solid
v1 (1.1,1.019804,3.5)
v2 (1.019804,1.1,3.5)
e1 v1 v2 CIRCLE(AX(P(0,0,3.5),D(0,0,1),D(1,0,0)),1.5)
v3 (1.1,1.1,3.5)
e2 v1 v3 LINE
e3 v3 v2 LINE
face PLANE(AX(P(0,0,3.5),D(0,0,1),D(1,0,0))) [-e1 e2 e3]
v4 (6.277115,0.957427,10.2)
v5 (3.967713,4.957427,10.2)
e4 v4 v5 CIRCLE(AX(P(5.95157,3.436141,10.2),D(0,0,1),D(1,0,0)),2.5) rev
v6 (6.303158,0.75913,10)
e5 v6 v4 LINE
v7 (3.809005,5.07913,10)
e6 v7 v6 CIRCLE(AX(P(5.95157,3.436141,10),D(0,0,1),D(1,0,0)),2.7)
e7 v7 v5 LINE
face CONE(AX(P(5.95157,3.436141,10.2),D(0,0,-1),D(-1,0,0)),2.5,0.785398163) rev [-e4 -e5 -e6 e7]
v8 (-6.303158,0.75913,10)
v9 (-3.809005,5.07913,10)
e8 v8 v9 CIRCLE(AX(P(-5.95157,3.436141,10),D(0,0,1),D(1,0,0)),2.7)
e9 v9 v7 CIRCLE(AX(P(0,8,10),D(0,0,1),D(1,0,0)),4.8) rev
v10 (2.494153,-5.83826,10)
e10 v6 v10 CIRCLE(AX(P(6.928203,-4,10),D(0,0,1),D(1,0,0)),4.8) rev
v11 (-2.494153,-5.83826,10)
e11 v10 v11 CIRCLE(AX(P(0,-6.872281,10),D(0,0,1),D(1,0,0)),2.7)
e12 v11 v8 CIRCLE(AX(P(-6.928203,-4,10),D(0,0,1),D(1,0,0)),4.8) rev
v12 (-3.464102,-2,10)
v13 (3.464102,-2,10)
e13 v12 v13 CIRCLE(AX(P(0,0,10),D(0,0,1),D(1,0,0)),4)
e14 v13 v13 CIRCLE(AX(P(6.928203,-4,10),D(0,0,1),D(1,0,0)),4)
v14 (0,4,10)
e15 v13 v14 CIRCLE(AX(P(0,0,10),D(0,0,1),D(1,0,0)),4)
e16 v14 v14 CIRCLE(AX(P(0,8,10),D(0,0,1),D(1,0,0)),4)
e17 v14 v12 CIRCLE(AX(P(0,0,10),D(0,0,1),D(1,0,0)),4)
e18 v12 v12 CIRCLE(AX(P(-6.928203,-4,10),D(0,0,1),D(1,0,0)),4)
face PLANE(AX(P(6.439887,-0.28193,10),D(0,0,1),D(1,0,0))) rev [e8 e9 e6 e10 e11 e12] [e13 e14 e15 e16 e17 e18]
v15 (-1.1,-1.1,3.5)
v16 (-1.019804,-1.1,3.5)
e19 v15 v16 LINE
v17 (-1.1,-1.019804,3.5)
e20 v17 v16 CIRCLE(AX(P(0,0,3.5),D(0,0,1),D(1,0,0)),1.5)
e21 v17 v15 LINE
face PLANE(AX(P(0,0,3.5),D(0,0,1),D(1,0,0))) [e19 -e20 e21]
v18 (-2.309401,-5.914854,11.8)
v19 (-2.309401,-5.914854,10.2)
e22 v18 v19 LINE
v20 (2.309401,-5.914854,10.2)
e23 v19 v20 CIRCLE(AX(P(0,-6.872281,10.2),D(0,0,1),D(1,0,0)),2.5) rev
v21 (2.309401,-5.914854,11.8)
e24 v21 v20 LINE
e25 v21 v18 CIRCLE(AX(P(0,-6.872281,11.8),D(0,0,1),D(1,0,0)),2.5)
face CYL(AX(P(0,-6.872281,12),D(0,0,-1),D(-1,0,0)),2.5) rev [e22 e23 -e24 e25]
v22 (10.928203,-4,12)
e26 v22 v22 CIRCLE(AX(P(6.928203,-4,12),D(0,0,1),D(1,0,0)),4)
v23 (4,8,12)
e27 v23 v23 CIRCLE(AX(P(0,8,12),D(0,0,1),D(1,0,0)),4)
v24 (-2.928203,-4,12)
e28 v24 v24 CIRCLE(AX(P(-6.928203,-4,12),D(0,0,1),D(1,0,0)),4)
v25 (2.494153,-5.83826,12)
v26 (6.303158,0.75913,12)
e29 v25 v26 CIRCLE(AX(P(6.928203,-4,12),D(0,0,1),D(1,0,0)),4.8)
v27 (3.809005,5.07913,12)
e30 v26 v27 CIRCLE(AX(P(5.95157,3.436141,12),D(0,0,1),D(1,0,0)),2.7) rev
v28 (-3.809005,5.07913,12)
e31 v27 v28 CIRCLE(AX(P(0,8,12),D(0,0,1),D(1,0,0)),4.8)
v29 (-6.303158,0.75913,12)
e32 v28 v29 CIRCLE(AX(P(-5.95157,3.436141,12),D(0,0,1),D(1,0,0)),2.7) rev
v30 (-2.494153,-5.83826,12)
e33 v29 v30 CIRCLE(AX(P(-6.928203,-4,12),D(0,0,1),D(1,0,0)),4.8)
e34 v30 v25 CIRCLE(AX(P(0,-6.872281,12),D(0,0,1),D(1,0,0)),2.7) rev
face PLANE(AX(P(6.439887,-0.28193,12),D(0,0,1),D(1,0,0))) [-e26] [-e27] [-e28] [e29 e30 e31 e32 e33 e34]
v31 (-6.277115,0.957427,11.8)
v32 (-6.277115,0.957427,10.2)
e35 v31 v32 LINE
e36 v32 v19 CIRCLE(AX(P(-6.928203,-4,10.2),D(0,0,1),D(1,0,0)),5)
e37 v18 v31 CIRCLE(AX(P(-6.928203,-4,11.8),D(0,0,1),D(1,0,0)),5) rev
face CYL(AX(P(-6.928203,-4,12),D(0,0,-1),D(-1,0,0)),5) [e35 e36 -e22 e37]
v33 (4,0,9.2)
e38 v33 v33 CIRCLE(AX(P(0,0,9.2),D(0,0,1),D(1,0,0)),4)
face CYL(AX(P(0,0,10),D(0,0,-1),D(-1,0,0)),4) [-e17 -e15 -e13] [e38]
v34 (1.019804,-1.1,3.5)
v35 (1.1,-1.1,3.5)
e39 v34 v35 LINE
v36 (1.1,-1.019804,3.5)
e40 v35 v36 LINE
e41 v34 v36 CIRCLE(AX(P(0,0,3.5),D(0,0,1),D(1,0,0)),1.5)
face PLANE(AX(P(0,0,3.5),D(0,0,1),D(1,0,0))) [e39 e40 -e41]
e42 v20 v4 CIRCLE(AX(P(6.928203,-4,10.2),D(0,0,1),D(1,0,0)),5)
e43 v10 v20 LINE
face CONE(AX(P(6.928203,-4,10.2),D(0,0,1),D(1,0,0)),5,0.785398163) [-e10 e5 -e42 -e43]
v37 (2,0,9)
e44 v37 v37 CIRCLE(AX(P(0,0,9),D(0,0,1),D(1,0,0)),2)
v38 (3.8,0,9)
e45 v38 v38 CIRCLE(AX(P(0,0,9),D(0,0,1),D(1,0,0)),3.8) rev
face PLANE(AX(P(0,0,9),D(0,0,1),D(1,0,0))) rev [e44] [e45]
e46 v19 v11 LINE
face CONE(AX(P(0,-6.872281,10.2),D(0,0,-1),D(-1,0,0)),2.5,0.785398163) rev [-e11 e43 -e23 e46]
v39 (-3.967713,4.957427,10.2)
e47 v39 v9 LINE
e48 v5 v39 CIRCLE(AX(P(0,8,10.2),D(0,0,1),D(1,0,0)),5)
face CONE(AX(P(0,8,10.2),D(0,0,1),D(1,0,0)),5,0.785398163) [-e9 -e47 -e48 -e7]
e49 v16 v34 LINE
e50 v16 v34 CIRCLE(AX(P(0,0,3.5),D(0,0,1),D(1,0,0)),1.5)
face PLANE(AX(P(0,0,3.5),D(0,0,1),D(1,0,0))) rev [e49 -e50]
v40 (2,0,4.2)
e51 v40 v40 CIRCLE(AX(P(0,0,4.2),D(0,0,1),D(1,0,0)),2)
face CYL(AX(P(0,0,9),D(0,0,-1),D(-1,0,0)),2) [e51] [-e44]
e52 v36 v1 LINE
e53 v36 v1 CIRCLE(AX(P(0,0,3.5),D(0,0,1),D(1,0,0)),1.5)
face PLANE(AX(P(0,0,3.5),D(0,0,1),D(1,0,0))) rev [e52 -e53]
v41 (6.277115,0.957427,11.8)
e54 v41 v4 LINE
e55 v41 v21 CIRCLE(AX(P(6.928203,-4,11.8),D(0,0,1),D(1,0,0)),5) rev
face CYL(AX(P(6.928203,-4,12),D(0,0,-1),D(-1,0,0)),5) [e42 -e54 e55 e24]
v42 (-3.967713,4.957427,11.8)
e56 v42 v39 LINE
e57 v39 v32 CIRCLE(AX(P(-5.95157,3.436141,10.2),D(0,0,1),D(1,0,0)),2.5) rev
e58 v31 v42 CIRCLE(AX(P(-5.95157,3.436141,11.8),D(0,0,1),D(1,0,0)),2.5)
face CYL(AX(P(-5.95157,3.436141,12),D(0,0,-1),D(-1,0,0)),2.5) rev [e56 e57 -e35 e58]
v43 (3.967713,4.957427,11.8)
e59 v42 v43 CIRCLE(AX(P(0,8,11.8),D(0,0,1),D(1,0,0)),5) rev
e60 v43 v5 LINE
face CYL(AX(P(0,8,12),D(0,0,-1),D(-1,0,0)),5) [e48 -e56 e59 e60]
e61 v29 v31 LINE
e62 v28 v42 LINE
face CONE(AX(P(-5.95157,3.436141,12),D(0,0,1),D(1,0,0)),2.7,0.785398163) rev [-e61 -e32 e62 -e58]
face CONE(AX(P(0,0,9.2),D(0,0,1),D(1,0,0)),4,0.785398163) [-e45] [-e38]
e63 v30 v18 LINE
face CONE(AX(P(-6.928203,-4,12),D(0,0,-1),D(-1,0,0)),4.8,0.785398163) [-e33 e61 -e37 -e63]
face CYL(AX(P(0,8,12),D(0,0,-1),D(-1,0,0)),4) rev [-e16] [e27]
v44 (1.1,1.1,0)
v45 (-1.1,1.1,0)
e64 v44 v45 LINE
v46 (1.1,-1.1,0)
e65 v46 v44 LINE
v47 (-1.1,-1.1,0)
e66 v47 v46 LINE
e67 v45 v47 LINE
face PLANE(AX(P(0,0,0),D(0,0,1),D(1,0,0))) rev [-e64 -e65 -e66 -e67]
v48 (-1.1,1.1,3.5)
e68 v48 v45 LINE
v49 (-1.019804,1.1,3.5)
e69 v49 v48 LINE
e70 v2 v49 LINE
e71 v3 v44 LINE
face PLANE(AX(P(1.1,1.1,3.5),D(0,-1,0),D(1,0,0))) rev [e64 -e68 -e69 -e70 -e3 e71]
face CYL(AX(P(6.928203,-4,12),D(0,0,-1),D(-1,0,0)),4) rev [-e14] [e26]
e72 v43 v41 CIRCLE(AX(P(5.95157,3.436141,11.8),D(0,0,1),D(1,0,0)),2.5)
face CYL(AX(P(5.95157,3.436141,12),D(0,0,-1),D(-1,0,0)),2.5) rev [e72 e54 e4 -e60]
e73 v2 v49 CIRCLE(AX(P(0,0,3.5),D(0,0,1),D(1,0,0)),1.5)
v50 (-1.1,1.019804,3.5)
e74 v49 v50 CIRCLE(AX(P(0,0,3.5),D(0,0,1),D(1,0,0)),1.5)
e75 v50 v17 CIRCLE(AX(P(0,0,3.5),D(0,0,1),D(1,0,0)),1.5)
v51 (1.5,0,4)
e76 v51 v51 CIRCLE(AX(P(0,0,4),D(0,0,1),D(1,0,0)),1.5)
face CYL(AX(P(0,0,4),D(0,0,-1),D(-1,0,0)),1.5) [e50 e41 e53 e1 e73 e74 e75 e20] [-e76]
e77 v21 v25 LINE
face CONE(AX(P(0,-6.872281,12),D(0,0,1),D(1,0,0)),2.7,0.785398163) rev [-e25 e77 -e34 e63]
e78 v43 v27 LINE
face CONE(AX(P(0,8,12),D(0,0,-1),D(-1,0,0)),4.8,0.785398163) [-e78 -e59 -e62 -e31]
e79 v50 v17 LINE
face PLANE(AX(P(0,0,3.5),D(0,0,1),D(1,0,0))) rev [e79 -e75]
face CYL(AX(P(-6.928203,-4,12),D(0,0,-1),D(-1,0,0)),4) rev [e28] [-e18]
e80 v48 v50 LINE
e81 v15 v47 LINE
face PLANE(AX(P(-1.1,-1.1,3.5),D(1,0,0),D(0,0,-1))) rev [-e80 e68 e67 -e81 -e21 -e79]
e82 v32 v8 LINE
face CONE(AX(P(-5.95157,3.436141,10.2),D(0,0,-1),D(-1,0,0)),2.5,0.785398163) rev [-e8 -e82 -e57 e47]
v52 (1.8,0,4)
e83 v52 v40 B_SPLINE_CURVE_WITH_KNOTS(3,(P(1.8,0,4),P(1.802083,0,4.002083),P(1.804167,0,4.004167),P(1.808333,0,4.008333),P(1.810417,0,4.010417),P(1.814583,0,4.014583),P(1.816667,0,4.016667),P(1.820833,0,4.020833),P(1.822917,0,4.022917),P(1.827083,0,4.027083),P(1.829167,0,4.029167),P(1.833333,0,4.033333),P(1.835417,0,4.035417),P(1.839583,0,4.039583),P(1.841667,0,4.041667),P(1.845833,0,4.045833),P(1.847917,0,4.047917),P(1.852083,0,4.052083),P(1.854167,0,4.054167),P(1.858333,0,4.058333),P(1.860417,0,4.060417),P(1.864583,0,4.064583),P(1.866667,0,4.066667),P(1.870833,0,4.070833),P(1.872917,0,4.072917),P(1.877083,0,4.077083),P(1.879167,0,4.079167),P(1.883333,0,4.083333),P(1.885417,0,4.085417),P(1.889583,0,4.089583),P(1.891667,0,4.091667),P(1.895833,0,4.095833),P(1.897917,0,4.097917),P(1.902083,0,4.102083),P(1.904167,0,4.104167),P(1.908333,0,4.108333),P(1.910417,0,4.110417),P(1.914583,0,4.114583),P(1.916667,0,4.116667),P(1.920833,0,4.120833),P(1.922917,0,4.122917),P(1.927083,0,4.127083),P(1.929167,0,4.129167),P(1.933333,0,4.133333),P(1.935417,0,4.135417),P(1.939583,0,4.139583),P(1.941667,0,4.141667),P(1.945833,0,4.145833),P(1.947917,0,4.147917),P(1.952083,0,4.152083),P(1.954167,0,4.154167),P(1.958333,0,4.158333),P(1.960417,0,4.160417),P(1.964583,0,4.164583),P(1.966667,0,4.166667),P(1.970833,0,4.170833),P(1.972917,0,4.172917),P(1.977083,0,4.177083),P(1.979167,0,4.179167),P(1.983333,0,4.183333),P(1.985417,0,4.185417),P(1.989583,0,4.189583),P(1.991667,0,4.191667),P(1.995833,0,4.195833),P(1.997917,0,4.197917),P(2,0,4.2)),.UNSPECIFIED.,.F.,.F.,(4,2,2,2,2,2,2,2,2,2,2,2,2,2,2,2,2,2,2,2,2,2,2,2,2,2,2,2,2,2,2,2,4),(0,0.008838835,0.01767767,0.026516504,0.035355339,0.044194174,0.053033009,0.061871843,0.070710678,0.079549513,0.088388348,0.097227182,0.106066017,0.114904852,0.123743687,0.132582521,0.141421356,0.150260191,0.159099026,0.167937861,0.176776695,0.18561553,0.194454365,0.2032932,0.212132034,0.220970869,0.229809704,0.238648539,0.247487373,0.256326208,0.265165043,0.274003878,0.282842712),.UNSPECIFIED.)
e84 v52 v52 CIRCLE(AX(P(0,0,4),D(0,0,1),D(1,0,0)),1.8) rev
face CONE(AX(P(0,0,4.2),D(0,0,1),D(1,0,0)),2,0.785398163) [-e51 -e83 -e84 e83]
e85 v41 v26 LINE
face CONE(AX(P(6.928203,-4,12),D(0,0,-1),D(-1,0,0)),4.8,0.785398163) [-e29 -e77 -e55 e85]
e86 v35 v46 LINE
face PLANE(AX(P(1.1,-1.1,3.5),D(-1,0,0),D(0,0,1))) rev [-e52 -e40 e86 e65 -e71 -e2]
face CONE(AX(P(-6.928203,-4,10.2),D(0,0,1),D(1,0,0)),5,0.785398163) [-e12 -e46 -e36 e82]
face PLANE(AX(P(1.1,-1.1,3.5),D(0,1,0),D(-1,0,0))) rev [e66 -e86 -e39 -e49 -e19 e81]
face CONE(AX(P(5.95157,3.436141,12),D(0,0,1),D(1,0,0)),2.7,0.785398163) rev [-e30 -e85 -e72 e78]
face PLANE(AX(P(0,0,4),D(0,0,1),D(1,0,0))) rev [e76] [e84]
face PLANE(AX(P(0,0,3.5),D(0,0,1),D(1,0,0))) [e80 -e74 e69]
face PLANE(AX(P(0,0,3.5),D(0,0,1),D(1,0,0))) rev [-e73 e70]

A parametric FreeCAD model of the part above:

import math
import FreeCAD as App
import Part
import Sketcher

V = App.Vector


def edges_at(feature, points):
    """Names of the edges that pass closest to the given points."""
    edges = feature.Shape.Edges
    near = lambda p: min(range(len(edges)), key=lambda i: edges[i].distToShape(Part.Vertex(*p))[0])
    return sorted({f"Edge{near(p) + 1}" for p in points})


def add_polygon(sketch, points):
    """Adds a closed chain of lines whose ends are joined by coincident constraints."""
    first, n = sketch.GeometryCount, len(points)
    for a, b in zip(points, points[1:] + points[:1]):
        sketch.addGeometry(Part.LineSegment(App.Vector(*a, 0), App.Vector(*b, 0)), False)
    for i in range(n):
        sketch.addConstraint(Sketcher.Constraint("Coincident", first + i, 2, first + (i + 1) % n, 1))

doc = App.newDocument("Part")
body = doc.addObject("PartDesign::Body", "Body")

# Sketch on XY plane
sketch1 = body.newObject("Sketcher::SketchObject", "Sketch")
sketch1.AttachmentSupport = (doc.getObject("XY_Plane"), [""])
sketch1.MapMode = "FlatFace"
add_polygon(sketch1, [(-1.1, 1.1), (-1.1, -1.1), (1.1, -1.1), (1.1, 1.1)])  # lines 0-3
sketch1.addConstraint([
    Sketcher.Constraint("Vertical", 0),
    Sketcher.Constraint("Horizontal", 1),
    Sketcher.Constraint("Vertical", 2),
    Sketcher.Constraint("Horizontal", 3),
    Sketcher.Constraint("Symmetric", 0, 2, 2, 2, -1, 1),
    Sketcher.Constraint("Equal", 3, 0),
    Sketcher.Constraint("DistanceX", 1, 1, 1, 2, 2.2),
])
pad1 = body.newObject("PartDesign::Pad", "Pad")
pad1.Profile = sketch1
pad1.Length = 3.5

# Sketch on XY plane
sketch2 = body.newObject("Sketcher::SketchObject", "Sketch001")
sketch2.AttachmentSupport = (doc.getObject("XY_Plane"), [""])
sketch2.MapMode = "FlatFace"
sketch2.AttachmentOffset = App.Placement(V(0, 0, 3.5), App.Rotation())
sketch2.addGeometry(Part.Circle(V(0, 0, 0), V(0, 0, 1), 1.5), False)
sketch2.addConstraint([
    Sketcher.Constraint("Coincident", 0, 3, -1, 1),
    Sketcher.Constraint("Diameter", 0, 3.0),
])
pad2 = body.newObject("PartDesign::Pad", "Pad001")
pad2.Profile = sketch2
pad2.Length = 0.5

# Sketch on XY plane
sketch3 = body.newObject("Sketcher::SketchObject", "Sketch002")
sketch3.AttachmentSupport = (doc.getObject("XY_Plane"), [""])
sketch3.MapMode = "FlatFace"
sketch3.AttachmentOffset = App.Placement(V(0, 0, 4), App.Rotation())
sketch3.addGeometry(Part.Circle(V(0, 0, 0), V(0, 0, 1), 2), False)
sketch3.addConstraint([
    Sketcher.Constraint("Coincident", 0, 3, -1, 1),
    Sketcher.Constraint("Diameter", 0, 4.0),
])
pad3 = body.newObject("PartDesign::Pad", "Pad002")
pad3.Profile = sketch3
pad3.Length = 5

# Sketch on XY plane
sketch4 = body.newObject("Sketcher::SketchObject", "Sketch003")
sketch4.AttachmentSupport = (doc.getObject("XY_Plane"), [""])
sketch4.MapMode = "FlatFace"
sketch4.AttachmentOffset = App.Placement(V(0, 0, 9), App.Rotation())
sketch4.addGeometry(Part.Circle(V(0, 0, 0), V(0, 0, 1), 4), False)
sketch4.addConstraint([
    Sketcher.Constraint("Coincident", 0, 3, -1, 1),
    Sketcher.Constraint("Diameter", 0, 8.0),
])
pad4 = body.newObject("PartDesign::Pad", "Pad003")
pad4.Profile = sketch4
pad4.Length = 1

# Sketch on XY plane
sketch5 = body.newObject("Sketcher::SketchObject", "Sketch004")
sketch5.AttachmentSupport = (doc.getObject("XY_Plane"), [""])
sketch5.MapMode = "FlatFace"
sketch5.AttachmentOffset = App.Placement(V(0, 0, 10), App.Rotation())
sketch5.addGeometry([
    Part.ArcOfCircle(Part.Circle(V(0, 8, 0), V(0, 0, 1), 5), math.radians(-37), math.radians(217)),  # 0
    Part.ArcOfCircle(Part.Circle(V(-6, 3.4, 0), V(0, 0, 1), 2.5), math.radians(-97), math.radians(37)),  # 1
    Part.ArcOfCircle(Part.Circle(V(-6.9, -4, 0), V(0, 0, 1), 5), math.radians(83), math.radians(337)),  # 2
    Part.ArcOfCircle(Part.Circle(V(0, -6.9, 0), V(0, 0, 1), 2.5), math.radians(23), math.radians(157)),  # 3
    Part.ArcOfCircle(Part.Circle(V(6.9, -4, 0), V(0, 0, 1), 5), math.radians(-157), math.radians(97)),  # 4
    Part.ArcOfCircle(Part.Circle(V(6, 3.4, 0), V(0, 0, 1), 2.5), math.radians(143), math.radians(277)),  # 5
    Part.Circle(V(-6.9, -4, 0), V(0, 0, 1), 4),  # 6
    Part.Circle(V(6.9, -4, 0), V(0, 0, 1), 4),  # 7
    Part.Circle(V(0, 8, 0), V(0, 0, 1), 4),  # 8
], False)
sketch5.addConstraint([
    Sketcher.Constraint("Tangent", 0, 2, 1, 2),
    Sketcher.Constraint("Tangent", 1, 1, 2, 1),
    Sketcher.Constraint("Tangent", 2, 2, 3, 2),
    Sketcher.Constraint("Tangent", 3, 1, 4, 1),
    Sketcher.Constraint("Tangent", 4, 2, 5, 2),
    Sketcher.Constraint("Tangent", 5, 1, 0, 1),
    Sketcher.Constraint("Coincident", 6, 3, 2, 3),
    Sketcher.Constraint("Coincident", 7, 3, 4, 3),
    Sketcher.Constraint("Coincident", 8, 3, 0, 3),
    Sketcher.Constraint("Equal", 0, 2),
    Sketcher.Constraint("Equal", 1, 3),
    Sketcher.Constraint("Equal", 2, 4),
    Sketcher.Constraint("Equal", 3, 5),
    Sketcher.Constraint("Equal", 6, 7),
    Sketcher.Constraint("Equal", 7, 8),
    Sketcher.Constraint("Symmetric", 2, 3, 4, 3, -2),
    Sketcher.Constraint("PointOnObject", 0, 3, -2),
    Sketcher.Constraint("Diameter", 6, 8.0),
    Sketcher.Constraint("Radius", 0, 5.0),
    Sketcher.Constraint("Radius", 1, 2.5),
    Sketcher.Constraint("DistanceY", -1, 1, 0, 3, 8.0),
    Sketcher.Constraint("DistanceY", 2, 3, -1, 1, 4.0),
    Sketcher.Constraint("DistanceX", 2, 2, -1, 1, 2.309401),
])
pad5 = body.newObject("PartDesign::Pad", "Pad004")
pad5.Profile = sketch5
pad5.Length = 2
doc.recompute()

chamfer = body.newObject("PartDesign::Chamfer", "Chamfer")
chamfer.Base = (pad5, edges_at(pad5, [
    (-2, 0, 4),
    (-4, 0, 9),
    (3.787, 2.186, 12),
    (0, 13, 12),
    (-3.787, 2.186, 12),
    (-11.258, -6.5, 12),
    (0, -4.372, 12),
    (11.258, -6.5, 12),
    (3.787, 2.186, 10),
    (0, 13, 10),
    (-3.787, 2.186, 10),
    (-11.258, -6.5, 10),
    (0, -4.372, 10),
    (11.258, -6.5, 10),
]))
chamfer.Size = 0.2

doc.recompute()
